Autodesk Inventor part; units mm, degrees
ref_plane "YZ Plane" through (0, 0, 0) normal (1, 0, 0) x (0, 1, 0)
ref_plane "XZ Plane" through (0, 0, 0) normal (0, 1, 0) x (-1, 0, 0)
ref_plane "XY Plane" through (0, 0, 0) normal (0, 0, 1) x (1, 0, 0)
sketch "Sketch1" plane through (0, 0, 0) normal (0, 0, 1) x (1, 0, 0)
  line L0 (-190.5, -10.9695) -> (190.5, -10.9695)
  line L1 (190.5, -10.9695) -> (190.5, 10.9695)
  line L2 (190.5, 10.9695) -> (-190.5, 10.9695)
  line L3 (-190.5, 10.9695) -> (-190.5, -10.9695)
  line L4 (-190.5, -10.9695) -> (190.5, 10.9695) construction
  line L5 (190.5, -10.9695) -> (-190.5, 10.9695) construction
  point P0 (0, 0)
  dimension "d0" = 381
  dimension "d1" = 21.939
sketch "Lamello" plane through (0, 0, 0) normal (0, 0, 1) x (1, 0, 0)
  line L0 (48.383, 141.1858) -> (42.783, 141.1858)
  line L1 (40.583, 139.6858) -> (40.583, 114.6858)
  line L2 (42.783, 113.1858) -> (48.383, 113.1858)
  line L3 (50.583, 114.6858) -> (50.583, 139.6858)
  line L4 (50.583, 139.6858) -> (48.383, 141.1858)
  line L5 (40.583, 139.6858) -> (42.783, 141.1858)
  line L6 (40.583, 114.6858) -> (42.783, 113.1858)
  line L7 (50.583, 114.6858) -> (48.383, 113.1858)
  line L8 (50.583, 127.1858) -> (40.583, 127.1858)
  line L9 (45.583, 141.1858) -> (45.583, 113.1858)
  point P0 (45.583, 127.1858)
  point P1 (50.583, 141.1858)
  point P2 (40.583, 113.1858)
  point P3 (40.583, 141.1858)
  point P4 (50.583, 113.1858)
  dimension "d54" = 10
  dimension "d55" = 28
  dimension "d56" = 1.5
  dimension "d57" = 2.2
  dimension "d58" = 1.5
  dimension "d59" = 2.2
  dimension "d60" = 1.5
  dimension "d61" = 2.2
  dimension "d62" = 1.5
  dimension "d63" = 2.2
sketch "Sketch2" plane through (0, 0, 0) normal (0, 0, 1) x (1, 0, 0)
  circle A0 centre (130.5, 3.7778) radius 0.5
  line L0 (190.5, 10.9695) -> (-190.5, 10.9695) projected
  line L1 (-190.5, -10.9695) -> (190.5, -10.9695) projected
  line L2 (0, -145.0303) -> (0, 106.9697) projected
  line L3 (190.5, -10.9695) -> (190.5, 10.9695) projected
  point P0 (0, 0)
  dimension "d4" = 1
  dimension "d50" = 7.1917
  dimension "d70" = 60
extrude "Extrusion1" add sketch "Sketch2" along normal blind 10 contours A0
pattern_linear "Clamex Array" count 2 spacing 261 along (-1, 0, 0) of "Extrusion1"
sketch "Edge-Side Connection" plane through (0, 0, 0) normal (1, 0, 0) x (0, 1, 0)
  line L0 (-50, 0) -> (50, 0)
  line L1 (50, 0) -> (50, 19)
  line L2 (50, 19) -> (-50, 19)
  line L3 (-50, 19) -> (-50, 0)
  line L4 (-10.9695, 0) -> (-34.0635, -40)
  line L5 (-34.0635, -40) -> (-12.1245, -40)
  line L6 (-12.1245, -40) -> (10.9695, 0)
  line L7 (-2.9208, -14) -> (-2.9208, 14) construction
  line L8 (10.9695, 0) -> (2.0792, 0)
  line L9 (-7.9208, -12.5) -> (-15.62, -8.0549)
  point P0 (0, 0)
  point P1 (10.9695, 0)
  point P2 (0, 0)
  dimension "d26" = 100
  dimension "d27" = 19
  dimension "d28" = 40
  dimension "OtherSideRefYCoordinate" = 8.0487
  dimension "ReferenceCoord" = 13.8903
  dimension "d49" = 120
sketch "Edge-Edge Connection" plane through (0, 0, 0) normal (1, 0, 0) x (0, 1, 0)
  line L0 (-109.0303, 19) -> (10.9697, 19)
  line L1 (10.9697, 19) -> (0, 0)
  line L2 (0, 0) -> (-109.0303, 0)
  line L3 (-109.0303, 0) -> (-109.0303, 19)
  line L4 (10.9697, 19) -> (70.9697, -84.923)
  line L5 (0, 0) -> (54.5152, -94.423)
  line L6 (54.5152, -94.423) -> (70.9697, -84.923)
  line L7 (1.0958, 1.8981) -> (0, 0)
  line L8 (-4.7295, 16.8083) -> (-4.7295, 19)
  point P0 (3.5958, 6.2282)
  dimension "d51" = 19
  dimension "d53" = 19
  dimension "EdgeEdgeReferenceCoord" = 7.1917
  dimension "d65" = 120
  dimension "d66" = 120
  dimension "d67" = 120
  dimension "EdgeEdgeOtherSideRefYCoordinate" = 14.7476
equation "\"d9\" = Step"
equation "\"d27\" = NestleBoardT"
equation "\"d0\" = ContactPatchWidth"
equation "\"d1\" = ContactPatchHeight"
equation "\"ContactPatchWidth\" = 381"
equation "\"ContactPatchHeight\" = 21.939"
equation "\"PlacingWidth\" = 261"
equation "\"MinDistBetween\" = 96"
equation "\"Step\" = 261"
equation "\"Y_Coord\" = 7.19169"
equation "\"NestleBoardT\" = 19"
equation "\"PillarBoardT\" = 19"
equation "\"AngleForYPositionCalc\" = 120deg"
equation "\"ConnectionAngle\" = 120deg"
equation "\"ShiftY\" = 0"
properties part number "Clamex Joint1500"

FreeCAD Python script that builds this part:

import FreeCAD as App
import Part
import Sketcher
Q = App.Units.Quantity

doc = App.newDocument("Part")
params = doc.addObject("Spreadsheet::Sheet", "Params")
for row, (alias, value) in enumerate([
    ("sketch1_diameter", "1 mm"),
    ("pad1_length", "10 mm"),
    ("linearpattern_pitch", "261 mm"),
], start=1):
    params.set(f"A{row}", alias)
    params.set(f"B{row}", "=" + value)
    params.setAlias(f"B{row}", alias)

body = doc.addObject("PartDesign::Body", "Body")
body.AllowCompound = True

# Sketch on XY plane
sketch1 = body.newObject("Sketcher::SketchObject", "Sketch")
sketch1.AttachmentSupport = (doc.getObject("XY_Plane"), [""])
sketch1.MapMode = "FlatFace"
sketch1.addGeometry(Part.Circle(App.Vector(130.5, 3.8, 0), App.Vector(0, 0, 1), 0.5), False)
sketch1.addConstraint([
    Sketcher.Constraint("Diameter", 0, Q("1 mm")),
    Sketcher.Constraint("DistanceX", -1, 1, 0, 3, Q("130.5 mm")),
    Sketcher.Constraint("DistanceY", -1, 1, 0, 3, Q("3.7778 mm")),
])
sketch1.setExpression("Constraints[0]", "Params.sketch1_diameter")
pad1 = body.newObject("PartDesign::Pad", "Pad")
pad1.Profile = sketch1
pad1.setExpression("Length", "Params.pad1_length")
doc.recompute()

linearpattern = body.newObject("PartDesign::LinearPattern", "LinearPattern")
linearpattern.Originals = [pad1]
linearpattern.Direction = (doc.getObject("X_Axis"), [""])
linearpattern.Mode = "offset"
linearpattern.setExpression("Offset", "Params.linearpattern_pitch")
linearpattern.Occurrences = 2
linearpattern.Reversed = True
body.Tip = linearpattern

doc.recompute()
